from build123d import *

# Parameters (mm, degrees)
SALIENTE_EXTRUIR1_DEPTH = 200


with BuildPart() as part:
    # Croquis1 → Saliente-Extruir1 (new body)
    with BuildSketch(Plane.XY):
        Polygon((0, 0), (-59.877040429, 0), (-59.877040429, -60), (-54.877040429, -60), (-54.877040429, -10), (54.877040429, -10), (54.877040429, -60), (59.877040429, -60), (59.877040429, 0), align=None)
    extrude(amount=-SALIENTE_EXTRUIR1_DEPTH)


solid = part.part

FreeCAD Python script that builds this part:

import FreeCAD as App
import Part
import Sketcher

V = App.Vector
Q = App.Units.Quantity

doc = App.newDocument("Part")
body = doc.addObject("PartDesign::Body", "Body")

# Sketch on XY plane
sketch1 = body.newObject("Sketcher::SketchObject", "Sketch")
sketch1.AttachmentSupport = (doc.getObject("XY_Plane"), [""])
sketch1.MapMode = "FlatFace"
sketch1.addGeometry([
    Part.LineSegment(V(-60, 0, 0), V(-60, -60, 0)),  # 0
    Part.LineSegment(V(-60, -60, 0), V(-55, -60, 0)),  # 1
    Part.LineSegment(V(-55, -60, 0), V(-55, -10, 0)),  # 2
    Part.LineSegment(V(-55, -10, 0), V(55, -10, 0)),  # 3
    Part.LineSegment(V(55, -10, 0), V(55, -60, 0)),  # 4
    Part.LineSegment(V(55, -60, 0), V(60, -60, 0)),  # 5
    Part.LineSegment(V(60, -60, 0), V(60, 0, 0)),  # 6
    Part.LineSegment(V(60, 0, 0), V(-60, 0, 0)),  # 7
], False)
sketch1.addConstraint([
    Sketcher.Constraint("Coincident", 0, 2, 1, 1),
    Sketcher.Constraint("Coincident", 1, 2, 2, 1),
    Sketcher.Constraint("Coincident", 2, 2, 3, 1),
    Sketcher.Constraint("Coincident", 3, 2, 4, 1),
    Sketcher.Constraint("Coincident", 4, 2, 5, 1),
    Sketcher.Constraint("Coincident", 5, 2, 6, 1),
    Sketcher.Constraint("Coincident", 6, 2, 7, 1),
    Sketcher.Constraint("Coincident", 7, 2, 0, 1),
    Sketcher.Constraint("Vertical", 0),
    Sketcher.Constraint("Horizontal", 1),
    Sketcher.Constraint("Vertical", 2),
    Sketcher.Constraint("Horizontal", 3),
    Sketcher.Constraint("Vertical", 4),
    Sketcher.Constraint("Horizontal", 5),
    Sketcher.Constraint("Vertical", 6),
    Sketcher.Constraint("Horizontal", 7),
    Sketcher.Constraint("Symmetric", 6, 2, 7, 2, -1, 1),
    Sketcher.Constraint("Symmetric", 1, 2, 4, 2, -2),
    Sketcher.Constraint("DistanceX", 1, 1, 1, 2, Q("5 mm")),
    Sketcher.Constraint("DistanceY", 0, 2, 0, 1, Q("60 mm")),
    Sketcher.Constraint("DistanceY", 2, 1, 2, 2, Q("50 mm")),
    Sketcher.Constraint("DistanceX", 3, 1, 3, 2, Q("109.754081 mm")),
])
pad1 = body.newObject("PartDesign::Pad", "Pad")
pad1.Profile = sketch1
pad1.Length = 200
pad1.Reversed = True

doc.recompute()
